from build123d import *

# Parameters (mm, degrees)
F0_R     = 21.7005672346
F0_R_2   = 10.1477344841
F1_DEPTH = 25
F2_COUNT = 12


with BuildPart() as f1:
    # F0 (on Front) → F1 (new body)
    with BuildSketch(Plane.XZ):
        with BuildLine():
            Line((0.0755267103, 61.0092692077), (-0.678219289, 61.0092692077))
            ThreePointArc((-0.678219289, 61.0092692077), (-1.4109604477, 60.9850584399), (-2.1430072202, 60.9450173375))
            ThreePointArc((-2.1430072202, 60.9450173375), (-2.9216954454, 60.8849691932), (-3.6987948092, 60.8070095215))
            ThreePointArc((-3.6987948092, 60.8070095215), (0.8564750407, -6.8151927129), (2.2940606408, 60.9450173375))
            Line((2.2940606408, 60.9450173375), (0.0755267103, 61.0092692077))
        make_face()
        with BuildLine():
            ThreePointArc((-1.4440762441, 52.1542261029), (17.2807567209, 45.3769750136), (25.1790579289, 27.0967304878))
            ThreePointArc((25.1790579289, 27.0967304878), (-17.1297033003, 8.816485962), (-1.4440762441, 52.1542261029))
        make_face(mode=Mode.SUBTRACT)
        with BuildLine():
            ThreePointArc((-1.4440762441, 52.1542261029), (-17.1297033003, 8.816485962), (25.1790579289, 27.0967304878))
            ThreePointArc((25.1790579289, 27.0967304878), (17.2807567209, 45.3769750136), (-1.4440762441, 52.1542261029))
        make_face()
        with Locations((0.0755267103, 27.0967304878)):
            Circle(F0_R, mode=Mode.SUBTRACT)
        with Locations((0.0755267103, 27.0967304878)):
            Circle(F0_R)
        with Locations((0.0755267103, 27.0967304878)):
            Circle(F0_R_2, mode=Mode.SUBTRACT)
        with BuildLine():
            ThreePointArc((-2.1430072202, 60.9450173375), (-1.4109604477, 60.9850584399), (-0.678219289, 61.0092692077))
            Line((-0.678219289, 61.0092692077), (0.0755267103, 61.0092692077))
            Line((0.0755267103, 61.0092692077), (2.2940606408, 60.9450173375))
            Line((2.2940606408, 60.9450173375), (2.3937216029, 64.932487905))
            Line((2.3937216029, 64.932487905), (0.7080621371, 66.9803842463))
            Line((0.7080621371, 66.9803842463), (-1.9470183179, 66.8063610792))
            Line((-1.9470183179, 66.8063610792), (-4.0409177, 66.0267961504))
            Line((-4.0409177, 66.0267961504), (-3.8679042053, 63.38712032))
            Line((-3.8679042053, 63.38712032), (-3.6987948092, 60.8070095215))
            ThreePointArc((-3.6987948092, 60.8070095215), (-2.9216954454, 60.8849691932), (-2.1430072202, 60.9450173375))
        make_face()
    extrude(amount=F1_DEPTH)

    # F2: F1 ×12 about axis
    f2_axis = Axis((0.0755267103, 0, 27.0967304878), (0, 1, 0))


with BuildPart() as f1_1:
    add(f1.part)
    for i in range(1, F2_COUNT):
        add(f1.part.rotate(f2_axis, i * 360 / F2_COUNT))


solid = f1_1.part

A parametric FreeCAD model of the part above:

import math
import FreeCAD as App
import Part
import Sketcher

V = App.Vector
Q = App.Units.Quantity

doc = App.newDocument("Part")
body = doc.addObject("PartDesign::Body", "Body")

sketch1 = doc.addObject("Sketcher::SketchObject", "Sketch")
body.addObject(sketch1)
sketch1.AttachmentSupport = (doc.XZ_Plane, [""])
sketch1.MapMode = "FlatFace"
sketch1.addGeometry([
    Part.ArcOfCircle(Part.Circle(V(0.1, 27.1, 0), V(0, 0, 1), 33.9), math.radians(96), math.radians(446)),
    Part.LineSegment(V(2.3, 60.9, 0), V(2.4, 64.9, 0)),
    Part.LineSegment(V(2.4, 64.9, 0), V(0.7, 67, 0)),
    Part.LineSegment(V(0.7, 67, 0), V(-1.9, 66.8, 0)),
    Part.LineSegment(V(-1.9, 66.8, 0), V(-4, 66, 0)),
    Part.LineSegment(V(-4, 66, 0), V(-3.9, 63.4, 0)),
    Part.LineSegment(V(-3.9, 63.4, 0), V(-3.7, 60.8, 0)),
    Part.Circle(V(0.1, 27.1, 0), V(0, 0, 1), 10.1),
], False)
sketch1.addConstraint([
    Sketcher.Constraint("Coincident", 0, 2, 1, 1),
    Sketcher.Constraint("Coincident", 1, 2, 2, 1),
    Sketcher.Constraint("Coincident", 2, 2, 3, 1),
    Sketcher.Constraint("Coincident", 3, 2, 4, 1),
    Sketcher.Constraint("Coincident", 4, 2, 5, 1),
    Sketcher.Constraint("Coincident", 5, 2, 6, 1),
    Sketcher.Constraint("Coincident", 6, 2, 0, 1),
    Sketcher.Constraint("Coincident", 7, 3, 0, 3),
    Sketcher.Constraint("Perpendicular", 3, 5),
    Sketcher.Constraint("Parallel", 5, 6),
    Sketcher.Constraint("Angle", 3, Q("-176.25 deg")),
    Sketcher.Constraint("Diameter", 7, Q("20.295469 mm")),
    Sketcher.Constraint("Radius", 0, Q("33.920914 mm")),
    Sketcher.Constraint("DistanceX", 2, 2, 0, 2, Q("1.585999 mm")),
    Sketcher.Constraint("DistanceX", 4, 2, 3, 2, Q("2.093899 mm")),
    Sketcher.Constraint("Distance", 2, Q("2.652419 mm")),
    Sketcher.Constraint("Distance", 4, Q("2.234309 mm")),
    Sketcher.Constraint("Distance", 5, Q("2.64534 mm")),
    Sketcher.Constraint("DistanceY", -1, 1, 0, 3, Q("27.09673 mm")),
    Sketcher.Constraint("DistanceX", -1, 1, 0, 2, Q("2.294061 mm")),
    Sketcher.Constraint("DistanceX", -1, 1, 1, 2, Q("2.393722 mm")),
    Sketcher.Constraint("DistanceX", 3, 2, -1, 1, Q("1.947018 mm")),
    Sketcher.Constraint("DistanceY", -1, 1, 3, 2, Q("66.806361 mm")),
    Sketcher.Constraint("DistanceY", -1, 1, 6, 2, Q("60.80701 mm")),
])
pad1 = doc.addObject("PartDesign::Pad", "Pad")
body.addObject(pad1)
pad1.Profile = sketch1
pad1.Length = 25
body2 = doc.addObject("PartDesign::Body", "Body001")
doc.recompute()

body2.BaseFeature = body
doc.recompute()

body3 = doc.addObject("PartDesign::Body", "Body002")
body3.BaseFeature = body
body3.Placement = App.Placement(V(-13.538247, 0, 3.668037), App.Rotation(V(0, 1, 0), 30))
boolean = doc.addObject("PartDesign::Boolean", "Boolean")
body2.addObject(boolean)
boolean.Type = "Fuse"
boolean.addObjects([body3])
doc.recompute()

body4 = doc.addObject("PartDesign::Body", "Body003")
body4.BaseFeature = body
body4.Placement = App.Placement(V(-23.428694, 0, 13.613773), App.Rotation(V(0, 1, 0), 60))
boolean2 = doc.addObject("PartDesign::Boolean", "Boolean001")
body2.addObject(boolean2)
boolean2.Type = "Fuse"
boolean2.addObjects([body4])
doc.recompute()

body5 = doc.addObject("PartDesign::Body", "Body004")
body5.BaseFeature = body
body5.Placement = App.Placement(V(-27.021204, 0, 27.172257), App.Rotation(V(0, 1, 0), 90))
boolean3 = doc.addObject("PartDesign::Boolean", "Boolean002")
body2.addObject(boolean3)
boolean3.Type = "Fuse"
boolean3.addObjects([body5])
doc.recompute()

body6 = doc.addObject("PartDesign::Body", "Body005")
body6.BaseFeature = body
body6.Placement = App.Placement(V(-23.353167, 0, 40.710504), App.Rotation(V(0, 1, 0), 120))
boolean4 = doc.addObject("PartDesign::Boolean", "Boolean003")
body2.addObject(boolean4)
boolean4.Type = "Fuse"
boolean4.addObjects([body6])
doc.recompute()

body7 = doc.addObject("PartDesign::Body", "Body006")
body7.BaseFeature = body
body7.Placement = App.Placement(V(-13.40743, 0, 50.600951), App.Rotation(V(0, 1, 0), 150))
boolean5 = doc.addObject("PartDesign::Boolean", "Boolean004")
body2.addObject(boolean5)
boolean5.Type = "Fuse"
boolean5.addObjects([body7])
doc.recompute()

body8 = doc.addObject("PartDesign::Body", "Body007")
body8.BaseFeature = body
body8.Placement = App.Placement(V(0.151053, 0, 54.193461), App.Rotation(V(0, 1, 0), 180))
boolean6 = doc.addObject("PartDesign::Boolean", "Boolean005")
body2.addObject(boolean6)
boolean6.Type = "Fuse"
boolean6.addObjects([body8])
doc.recompute()

body9 = doc.addObject("PartDesign::Body", "Body008")
body9.BaseFeature = body
body9.Placement = App.Placement(V(13.6893, 0, 50.525424), App.Rotation(V(0, 1, 0), 210))
boolean7 = doc.addObject("PartDesign::Boolean", "Boolean006")
body2.addObject(boolean7)
boolean7.Type = "Fuse"
boolean7.addObjects([body9])
doc.recompute()

body10 = doc.addObject("PartDesign::Body", "Body009")
body10.BaseFeature = body
body10.Placement = App.Placement(V(23.579747, 0, 40.579688), App.Rotation(V(0, 1, 0), 240))
boolean8 = doc.addObject("PartDesign::Boolean", "Boolean007")
body2.addObject(boolean8)
boolean8.Type = "Fuse"
boolean8.addObjects([body10])
doc.recompute()

body11 = doc.addObject("PartDesign::Body", "Body010")
body11.BaseFeature = body
body11.Placement = App.Placement(V(27.172257, 0, 27.021204), App.Rotation(V(0, 1, 0), 270))
boolean9 = doc.addObject("PartDesign::Boolean", "Boolean008")
body2.addObject(boolean9)
boolean9.Type = "Fuse"
boolean9.addObjects([body11])
doc.recompute()

body12 = doc.addObject("PartDesign::Body", "Body011")
body12.BaseFeature = body
body12.Placement = App.Placement(V(23.50422, 0, 13.482957), App.Rotation(V(0, 1, 0), 300))
boolean10 = doc.addObject("PartDesign::Boolean", "Boolean009")
body2.addObject(boolean10)
boolean10.Type = "Fuse"
boolean10.addObjects([body12])
doc.recompute()

body.Placement = App.Placement(V(13.558484, 0, 3.59251), App.Rotation(V(0, 1, 0), 330))
boolean11 = doc.addObject("PartDesign::Boolean", "Boolean010")
body2.addObject(boolean11)
boolean11.Type = "Fuse"
boolean11.addObjects([body])

doc.recompute()
